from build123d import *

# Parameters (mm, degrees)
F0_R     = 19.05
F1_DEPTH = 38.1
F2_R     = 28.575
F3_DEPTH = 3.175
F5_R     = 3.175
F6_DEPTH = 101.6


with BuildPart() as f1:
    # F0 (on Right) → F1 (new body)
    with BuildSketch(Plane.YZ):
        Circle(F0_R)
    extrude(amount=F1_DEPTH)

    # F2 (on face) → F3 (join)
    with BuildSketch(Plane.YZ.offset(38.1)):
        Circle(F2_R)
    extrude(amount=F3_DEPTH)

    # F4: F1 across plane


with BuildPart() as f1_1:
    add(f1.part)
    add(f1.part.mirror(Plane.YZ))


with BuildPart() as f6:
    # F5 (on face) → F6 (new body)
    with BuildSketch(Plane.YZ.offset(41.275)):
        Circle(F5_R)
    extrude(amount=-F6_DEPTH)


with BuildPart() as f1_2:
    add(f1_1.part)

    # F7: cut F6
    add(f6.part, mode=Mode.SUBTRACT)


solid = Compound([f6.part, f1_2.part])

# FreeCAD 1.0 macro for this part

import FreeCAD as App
import Part
import Sketcher

V = App.Vector
Q = App.Units.Quantity

doc = App.newDocument("Part")
body = doc.addObject("PartDesign::Body", "Body")

sketch1 = body.newObject("Sketcher::SketchObject", "Sketch")
sketch1.AttachmentSupport = (doc.getObject("YZ_Plane"), [""])
sketch1.MapMode = "FlatFace"
sketch1.addGeometry(Part.Circle(V(0, 0, 0), V(0, 0, 1), 19.05), False)
sketch1.addConstraint([
    Sketcher.Constraint("Coincident", 0, 3, -1, 1),
    Sketcher.Constraint("Diameter", 0, Q("1.5 in")),
])
pad1 = body.newObject("PartDesign::Pad", "Pad")
pad1.Profile = sketch1
pad1.Length = Q("1.5 in")

sketch2 = body.newObject("Sketcher::SketchObject", "Sketch001")
sketch2.AttachmentSupport = (doc.getObject("YZ_Plane"), [""])
sketch2.MapMode = "FlatFace"
sketch2.AttachmentOffset = App.Placement(V(0, 0, 1.5 * 25.4), App.Rotation())
sketch2.addGeometry(Part.Circle(V(0, 0, 0), V(0, 0, 1), 28.575), False)
sketch2.addConstraint([
    Sketcher.Constraint("Coincident", 0, 3, -1, 1),
    Sketcher.Constraint("Diameter", 0, Q("2.25 in")),
])
pad2 = body.newObject("PartDesign::Pad", "Pad001")
pad2.Profile = sketch2
pad2.Length = Q("0.125 in")
body2 = doc.addObject("PartDesign::Body", "Body001")
doc.recompute()

body2.BaseFeature = body
doc.recompute()

mirroring = doc.addObject("Part::Mirroring", "Mirroring")
mirroring.Source = body
mirroring.Base = V(0, 0, 0)
mirroring.Normal = V(1, 0, 0)
body3 = doc.addObject("PartDesign::Body", "Body002")
body3.BaseFeature = mirroring
boolean = body2.newObject("PartDesign::Boolean", "Boolean")
boolean.Type = "Fuse"
boolean.addObjects([body3])
doc.recompute()
body4 = doc.addObject("PartDesign::Body", "Body003")

sketch3 = body4.newObject("Sketcher::SketchObject", "Sketch002")
sketch3.AttachmentSupport = (doc.getObject("YZ_Plane003"), [""])
sketch3.MapMode = "FlatFace"
sketch3.AttachmentOffset = App.Placement(V(0, 0, 1.625 * 25.4), App.Rotation())
sketch3.addGeometry(Part.Circle(V(0, 0, 0), V(0, 0, 1), 3.175), False)
sketch3.addConstraint([
    Sketcher.Constraint("Coincident", 0, 3, -1, 1),
    Sketcher.Constraint("Diameter", 0, Q("0.25 in")),
])
pad3 = body4.newObject("PartDesign::Pad", "Pad002")
pad3.Profile = sketch3
pad3.Length = Q("4 in")
pad3.Reversed = True
doc.recompute()

body5 = doc.addObject("PartDesign::Body", "Body004")
body5.BaseFeature = body4
boolean2 = body2.newObject("PartDesign::Boolean", "Boolean001")
boolean2.Type = "Cut"
boolean2.addObjects([body5])
doc.recompute()

doc.recompute()
